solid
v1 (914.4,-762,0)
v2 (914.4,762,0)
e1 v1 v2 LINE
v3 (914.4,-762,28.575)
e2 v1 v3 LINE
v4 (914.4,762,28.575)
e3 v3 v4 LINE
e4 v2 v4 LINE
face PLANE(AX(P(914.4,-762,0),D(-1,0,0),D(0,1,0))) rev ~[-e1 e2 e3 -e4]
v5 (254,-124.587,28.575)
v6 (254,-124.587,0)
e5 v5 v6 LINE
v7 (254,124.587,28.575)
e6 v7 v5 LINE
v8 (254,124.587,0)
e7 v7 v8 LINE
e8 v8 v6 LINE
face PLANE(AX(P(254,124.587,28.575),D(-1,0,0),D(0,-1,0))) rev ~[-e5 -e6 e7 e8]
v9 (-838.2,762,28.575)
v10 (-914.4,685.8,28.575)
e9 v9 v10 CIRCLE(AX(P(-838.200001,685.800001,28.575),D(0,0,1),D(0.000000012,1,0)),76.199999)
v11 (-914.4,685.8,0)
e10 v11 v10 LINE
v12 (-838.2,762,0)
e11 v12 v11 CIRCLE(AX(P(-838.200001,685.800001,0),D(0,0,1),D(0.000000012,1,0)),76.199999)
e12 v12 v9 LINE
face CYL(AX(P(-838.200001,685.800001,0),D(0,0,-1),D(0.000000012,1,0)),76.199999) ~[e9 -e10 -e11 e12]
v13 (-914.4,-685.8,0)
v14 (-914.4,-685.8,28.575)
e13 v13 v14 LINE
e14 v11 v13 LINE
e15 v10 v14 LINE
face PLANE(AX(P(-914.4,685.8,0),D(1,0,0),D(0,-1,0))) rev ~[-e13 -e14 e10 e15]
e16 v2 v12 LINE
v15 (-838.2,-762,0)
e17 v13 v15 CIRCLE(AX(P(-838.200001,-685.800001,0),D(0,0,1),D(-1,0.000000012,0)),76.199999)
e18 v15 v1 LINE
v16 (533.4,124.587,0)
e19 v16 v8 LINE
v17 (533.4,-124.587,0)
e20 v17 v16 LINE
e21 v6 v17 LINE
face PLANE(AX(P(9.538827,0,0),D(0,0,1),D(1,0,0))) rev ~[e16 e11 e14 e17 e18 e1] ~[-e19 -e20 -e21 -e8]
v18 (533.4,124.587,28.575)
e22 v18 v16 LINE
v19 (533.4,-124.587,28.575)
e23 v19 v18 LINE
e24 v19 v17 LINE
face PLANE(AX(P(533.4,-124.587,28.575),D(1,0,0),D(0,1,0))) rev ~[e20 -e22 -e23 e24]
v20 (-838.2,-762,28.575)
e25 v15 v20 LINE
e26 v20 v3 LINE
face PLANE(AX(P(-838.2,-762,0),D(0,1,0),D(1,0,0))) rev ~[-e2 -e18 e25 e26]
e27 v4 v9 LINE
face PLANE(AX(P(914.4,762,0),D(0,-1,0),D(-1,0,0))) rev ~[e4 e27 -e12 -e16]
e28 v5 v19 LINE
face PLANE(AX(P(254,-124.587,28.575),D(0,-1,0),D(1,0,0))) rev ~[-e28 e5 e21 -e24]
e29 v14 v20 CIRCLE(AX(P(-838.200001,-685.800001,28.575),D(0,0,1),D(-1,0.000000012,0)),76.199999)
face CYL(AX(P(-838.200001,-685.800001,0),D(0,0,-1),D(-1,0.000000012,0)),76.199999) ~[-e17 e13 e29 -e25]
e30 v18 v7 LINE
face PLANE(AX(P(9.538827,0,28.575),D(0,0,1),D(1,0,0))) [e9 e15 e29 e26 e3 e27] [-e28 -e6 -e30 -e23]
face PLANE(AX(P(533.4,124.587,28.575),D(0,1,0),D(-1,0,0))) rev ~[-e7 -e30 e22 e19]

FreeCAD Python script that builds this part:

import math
import FreeCAD as App
import Part
import Sketcher
Q = App.Units.Quantity

doc = App.newDocument("Part")
params = doc.addObject("Spreadsheet::Sheet", "Params")
for row, (alias, value) in enumerate([
    ("sketch1_radius", "3 in"),
    ("sketch1_width", "69 in"),
    ("sketch1_height", "60 in"),
    ("pad1_length", "1.125 in"),
    ("sketch2_width", "11 in"),
    ("sketch2_height", "9.81 in"),
    ("pocket1_length", "1.125 in"),
], start=1):
    params.set(f"A{row}", alias)
    params.set(f"B{row}", "=" + value)
    params.setAlias(f"B{row}", alias)

body = doc.addObject("PartDesign::Body", "Body")

# Sketch on XY plane
sketch1 = body.newObject("Sketcher::SketchObject", "Sketch")
sketch1.AttachmentSupport = (doc.getObject("XY_Plane"), [""])
sketch1.MapMode = "FlatFace"
sketch1.addGeometry([
    Part.LineSegment(App.Vector(914.4, -762, 0), App.Vector(914.4, 762, 0)),  # 0
    Part.LineSegment(App.Vector(914.4, 762, 0), App.Vector(-838.2, 762, 0)),  # 1
    Part.ArcOfCircle(Part.Circle(App.Vector(-838.200001, 685.800001, 0), App.Vector(0, 0, 1), 76.199999), math.radians(89.999999), math.radians(180.000001)),  # 2
    Part.LineSegment(App.Vector(-914.4, 685.8, 0), App.Vector(-914.4, -685.8, 0)),  # 3
    Part.ArcOfCircle(Part.Circle(App.Vector(-838.200001, -685.800001, 0), App.Vector(0, 0, 1), 76.199999), math.radians(179.999999), math.radians(270.000001)),  # 4
    Part.LineSegment(App.Vector(-838.2, -762, 0), App.Vector(914.4, -762, 0)),  # 5
], False)
sketch1.addConstraint([
    Sketcher.Constraint("Coincident", 0, 2, 1, 1),
    Sketcher.Constraint("Tangent", 1, 2, 2, 1),
    Sketcher.Constraint("Tangent", 2, 2, 3, 1),
    Sketcher.Constraint("Tangent", 3, 2, 4, 1),
    Sketcher.Constraint("Tangent", 4, 2, 5, 1),
    Sketcher.Constraint("Coincident", 5, 2, 0, 1),
    Sketcher.Constraint("Vertical", 0),
    Sketcher.Constraint("Horizontal", 1),
    Sketcher.Constraint("Vertical", 3),
    Sketcher.Constraint("Horizontal", 5),
    Sketcher.Constraint("Equal", 2, 4),
    Sketcher.Constraint("Radius", 2, Q("3 in")),
    Sketcher.Constraint("DistanceX", 1, 2, 1, 1, Q("69 in")),
    Sketcher.Constraint("DistanceY", 0, 1, 0, 2, Q("60 in")),
    Sketcher.Constraint("DistanceX", 2, 3, -1, 1, Q("33 in")),
    Sketcher.Constraint("DistanceY", -1, 1, 2, 3, Q("27 in")),
])
sketch1.setExpression("Constraints[11]", "Params.sketch1_radius")
sketch1.setExpression("Constraints[12]", "Params.sketch1_width")
sketch1.setExpression("Constraints[13]", "Params.sketch1_height")
pad1 = body.newObject("PartDesign::Pad", "Pad")
pad1.Profile = sketch1
pad1.setExpression("Length", "Params.pad1_length")

# Sketch on XY plane
sketch2 = body.newObject("Sketcher::SketchObject", "Sketch001")
sketch2.AttachmentSupport = (doc.getObject("XY_Plane"), [""])
sketch2.MapMode = "FlatFace"
sketch2.AttachmentOffset = App.Placement(App.Vector(0, 0, 1.125 * 25.4), App.Rotation())
sketch2.addGeometry([
    Part.LineSegment(App.Vector(533.4, -124.587, 0), App.Vector(533.4, 124.587, 0)),
    Part.LineSegment(App.Vector(533.4, 124.587, 0), App.Vector(254, 124.587, 0)),
    Part.LineSegment(App.Vector(254, 124.587, 0), App.Vector(254, -124.587, 0)),
    Part.LineSegment(App.Vector(254, -124.587, 0), App.Vector(533.4, -124.587, 0)),
], False)
sketch2.addConstraint([
    Sketcher.Constraint("Coincident", 0, 2, 1, 1),
    Sketcher.Constraint("Coincident", 1, 2, 2, 1),
    Sketcher.Constraint("Coincident", 2, 2, 3, 1),
    Sketcher.Constraint("Coincident", 3, 2, 0, 1),
    Sketcher.Constraint("Vertical", 0),
    Sketcher.Constraint("Horizontal", 1),
    Sketcher.Constraint("Vertical", 2),
    Sketcher.Constraint("Horizontal", 3),
    Sketcher.Constraint("DistanceX", 1, 2, 1, 1, Q("11 in")),
    Sketcher.Constraint("DistanceX", -1, 1, 0, 2, Q("21 in")),
    Sketcher.Constraint("DistanceY", 0, 1, 0, 2, Q("9.81 in")),
    Sketcher.Constraint("DistanceY", -1, 1, 0, 2, Q("4.905 in")),
])
sketch2.setExpression("Constraints[8]", "Params.sketch2_width")
sketch2.setExpression("Constraints[10]", "Params.sketch2_height")
pocket1 = body.newObject("PartDesign::Pocket", "Pocket")
pocket1.Profile = sketch2
pocket1.setExpression("Length", "Params.pocket1_length")

doc.recompute()
